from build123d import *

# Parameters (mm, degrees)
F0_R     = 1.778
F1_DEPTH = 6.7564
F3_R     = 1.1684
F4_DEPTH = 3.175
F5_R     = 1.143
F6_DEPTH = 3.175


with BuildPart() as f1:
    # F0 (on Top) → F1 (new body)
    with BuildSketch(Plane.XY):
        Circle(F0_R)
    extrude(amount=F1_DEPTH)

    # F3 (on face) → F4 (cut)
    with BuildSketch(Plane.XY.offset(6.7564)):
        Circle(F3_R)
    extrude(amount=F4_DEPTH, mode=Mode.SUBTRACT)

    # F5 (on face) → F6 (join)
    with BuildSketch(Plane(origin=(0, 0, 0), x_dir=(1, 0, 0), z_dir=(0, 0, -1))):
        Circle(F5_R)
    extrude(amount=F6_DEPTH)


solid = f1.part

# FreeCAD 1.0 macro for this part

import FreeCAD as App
import Part
import Sketcher
from FreeCAD import Vector
Q = App.Units.Quantity

doc = App.newDocument("Part")
body = doc.addObject("PartDesign::Body", "Body")

sketch1 = body.newObject("Sketcher::SketchObject", "Sketch")
sketch1.AttachmentSupport = (doc.getObject("XY_Plane"), [""])
sketch1.MapMode = "FlatFace"
sketch1.addGeometry(Part.Circle(Vector(0, 0, 0), Vector(0, 0, 1), 1.8), False)
sketch1.addConstraint([
    Sketcher.Constraint("Coincident", 0, 3, -1, 1),
    Sketcher.Constraint("Diameter", 0, Q("0.14 in")),
])
pad1 = body.newObject("PartDesign::Pad", "Pad")
pad1.Profile = sketch1
pad1.Length = Q("0.266 in")

sketch2 = body.newObject("Sketcher::SketchObject", "Sketch001")
sketch2.AttachmentSupport = (doc.getObject("XY_Plane"), [""])
sketch2.MapMode = "FlatFace"
sketch2.AttachmentOffset = App.Placement(Vector(0, 0, 0.266 * 25.4), App.Rotation())
sketch2.addGeometry(Part.Circle(Vector(0, 0, 0), Vector(0, 0, 1), 1.2), False)
sketch2.addConstraint([
    Sketcher.Constraint("Coincident", 0, 3, -1, 1),
    Sketcher.Constraint("Diameter", 0, Q("0.092 in")),
])
pocket1 = body.newObject("PartDesign::Pocket", "Pocket")
pocket1.Profile = sketch2
pocket1.Length = Q("0.125 in")
pocket1.Reversed = True

sketch3 = body.newObject("Sketcher::SketchObject", "Sketch002")
sketch3.AttachmentSupport = (doc.getObject("XY_Plane"), [""])
sketch3.MapMode = "FlatFace"
sketch3.addGeometry(Part.Circle(Vector(0, 0, 0), Vector(0, 0, 1), 1.1), False)
sketch3.addConstraint([
    Sketcher.Constraint("Coincident", 0, 3, -1, 1),
    Sketcher.Constraint("Diameter", 0, Q("0.09 in")),
])
pad2 = body.newObject("PartDesign::Pad", "Pad001")
pad2.Profile = sketch3
pad2.Length = Q("0.125 in")
pad2.Reversed = True

doc.recompute()
